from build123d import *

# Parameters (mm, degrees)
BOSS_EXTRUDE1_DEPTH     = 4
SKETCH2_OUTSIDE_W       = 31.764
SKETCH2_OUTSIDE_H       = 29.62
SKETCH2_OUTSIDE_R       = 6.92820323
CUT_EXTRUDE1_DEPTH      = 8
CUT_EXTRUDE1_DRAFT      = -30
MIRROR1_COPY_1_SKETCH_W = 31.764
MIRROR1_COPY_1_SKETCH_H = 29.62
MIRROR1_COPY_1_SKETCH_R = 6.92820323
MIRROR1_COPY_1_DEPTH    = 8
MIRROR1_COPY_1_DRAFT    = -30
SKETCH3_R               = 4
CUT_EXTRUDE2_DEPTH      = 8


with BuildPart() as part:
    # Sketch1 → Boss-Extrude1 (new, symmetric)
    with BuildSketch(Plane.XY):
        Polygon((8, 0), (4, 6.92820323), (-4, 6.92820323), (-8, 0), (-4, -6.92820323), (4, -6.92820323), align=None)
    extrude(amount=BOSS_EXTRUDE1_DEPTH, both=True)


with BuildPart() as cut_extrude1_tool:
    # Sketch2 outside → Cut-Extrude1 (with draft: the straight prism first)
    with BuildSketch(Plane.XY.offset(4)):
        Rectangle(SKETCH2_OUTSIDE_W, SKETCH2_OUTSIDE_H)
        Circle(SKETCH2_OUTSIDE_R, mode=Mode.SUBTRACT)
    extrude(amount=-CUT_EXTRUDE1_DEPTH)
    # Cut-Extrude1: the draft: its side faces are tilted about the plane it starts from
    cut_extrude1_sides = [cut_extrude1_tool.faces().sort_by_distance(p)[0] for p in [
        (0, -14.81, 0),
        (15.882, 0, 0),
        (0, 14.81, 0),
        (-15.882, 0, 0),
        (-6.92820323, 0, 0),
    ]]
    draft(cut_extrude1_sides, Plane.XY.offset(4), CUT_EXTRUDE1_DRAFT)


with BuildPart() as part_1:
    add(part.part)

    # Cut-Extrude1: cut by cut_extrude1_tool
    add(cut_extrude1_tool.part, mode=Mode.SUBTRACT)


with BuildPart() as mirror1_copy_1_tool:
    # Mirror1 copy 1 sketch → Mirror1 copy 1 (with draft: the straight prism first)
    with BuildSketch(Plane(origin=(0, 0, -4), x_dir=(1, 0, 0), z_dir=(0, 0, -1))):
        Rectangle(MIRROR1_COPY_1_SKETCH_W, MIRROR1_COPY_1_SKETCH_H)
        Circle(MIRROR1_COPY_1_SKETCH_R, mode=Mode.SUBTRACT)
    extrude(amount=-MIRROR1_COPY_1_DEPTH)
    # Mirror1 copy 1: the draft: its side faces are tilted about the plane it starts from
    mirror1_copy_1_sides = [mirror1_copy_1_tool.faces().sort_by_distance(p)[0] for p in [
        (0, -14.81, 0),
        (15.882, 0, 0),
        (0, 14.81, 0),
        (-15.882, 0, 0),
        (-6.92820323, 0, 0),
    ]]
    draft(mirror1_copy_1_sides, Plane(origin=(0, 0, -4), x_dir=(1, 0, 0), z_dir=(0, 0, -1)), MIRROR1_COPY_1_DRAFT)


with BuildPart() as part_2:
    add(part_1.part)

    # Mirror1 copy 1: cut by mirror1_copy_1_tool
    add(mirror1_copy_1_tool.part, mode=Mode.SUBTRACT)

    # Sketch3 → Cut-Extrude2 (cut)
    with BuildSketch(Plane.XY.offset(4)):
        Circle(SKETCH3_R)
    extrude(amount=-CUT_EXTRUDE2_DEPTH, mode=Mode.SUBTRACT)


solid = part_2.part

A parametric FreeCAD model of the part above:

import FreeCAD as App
import Part
import Sketcher
Q = App.Units.Quantity


def faces_at(feature, points):
    """Names of the faces that lie closest to the given points."""
    faces = feature.Shape.Faces
    near = lambda p: min(range(len(faces)), key=lambda i: faces[i].distToShape(Part.Vertex(*p))[0])
    return sorted({f"Face{near(p) + 1}" for p in points})

doc = App.newDocument("Part")
params = doc.addObject("Spreadsheet::Sheet", "Params")
for row, (alias, value) in enumerate([
    ("sketch1_width", "8 mm"),
    ("sketch1_length", "8 mm"),
    ("pad1_length", "8 mm"),
    ("sketch2_height", "29.62 mm"),
    ("pad2_length", "8 mm"),
    ("draft_angle", "30 deg"),
    ("sketch3_height", "29.62 mm"),
    ("pad3_length", "8 mm"),
    ("draft2_angle", "30 deg"),
    ("sketch4_diameter", "8 mm"),
    ("pocket1_length", "8 mm"),
], start=1):
    params.set(f"A{row}", alias)
    params.set(f"B{row}", "=" + value)
    params.setAlias(f"B{row}", alias)

body = doc.addObject("PartDesign::Body", "Body")

sketch1 = body.newObject("Sketcher::SketchObject", "Sketch")
sketch1.AttachmentSupport = (doc.getObject("XY_Plane"), [""])
sketch1.MapMode = "FlatFace"
sketch1.addGeometry([
    Part.LineSegment(App.Vector(8, 0, 0), App.Vector(4, 7, 0)),
    Part.LineSegment(App.Vector(4, 7, 0), App.Vector(-4, 7, 0)),
    Part.LineSegment(App.Vector(-4, 7, 0), App.Vector(-8, 0, 0)),
    Part.LineSegment(App.Vector(-8, 0, 0), App.Vector(-4, -7, 0)),
    Part.LineSegment(App.Vector(-4, -7, 0), App.Vector(4, -7, 0)),
    Part.LineSegment(App.Vector(4, -7, 0), App.Vector(8, 0, 0)),
], False)
sketch1.addConstraint([
    Sketcher.Constraint("Coincident", 0, 2, 1, 1),
    Sketcher.Constraint("Coincident", 1, 2, 2, 1),
    Sketcher.Constraint("Coincident", 2, 2, 3, 1),
    Sketcher.Constraint("Coincident", 3, 2, 4, 1),
    Sketcher.Constraint("Coincident", 4, 2, 5, 1),
    Sketcher.Constraint("Coincident", 5, 2, 0, 1),
    Sketcher.Constraint("Horizontal", 1),
    Sketcher.Constraint("Horizontal", 4),
    Sketcher.Constraint("Symmetric", 0, 2, 3, 2, -1, 1),
    Sketcher.Constraint("Symmetric", 2, 2, 5, 2, -1, 1),
    Sketcher.Constraint("PointOnObject", 2, 2, -1),
    Sketcher.Constraint("Parallel", 2, 5),
    Sketcher.Constraint("Vertical", 1, 2, 3, 2),
    Sketcher.Constraint("DistanceX", 1, 2, 1, 1, Q("8 mm")),
    Sketcher.Constraint("Angle", 0, Q("120 deg")),
    Sketcher.Constraint("Distance", 0, Q("8 mm")),
])
sketch1.setExpression("Constraints[13]", "Params.sketch1_width")
sketch1.setExpression("Constraints[15]", "Params.sketch1_length")
pad1 = body.newObject("PartDesign::Pad", "Pad")
pad1.Profile = sketch1
pad1.setExpression("Length", "Params.pad1_length")
pad1.Midplane = True
body2 = doc.addObject("PartDesign::Body", "Body001")

sketch2 = body2.newObject("Sketcher::SketchObject", "Sketch001")
sketch2.AttachmentSupport = (doc.getObject("XY_Plane001"), [""])
sketch2.MapMode = "FlatFace"
sketch2.AttachmentOffset = App.Placement(App.Vector(0, 0, 4), App.Rotation())
sketch2.addGeometry([
    Part.LineSegment(App.Vector(-16, 15, 0), App.Vector(-16, -15, 0)),
    Part.LineSegment(App.Vector(-16, -15, 0), App.Vector(16, -15, 0)),
    Part.LineSegment(App.Vector(16, -15, 0), App.Vector(16, 15, 0)),
    Part.LineSegment(App.Vector(16, 15, 0), App.Vector(-16, 15, 0)),
    Part.Circle(App.Vector(0, 0, 0), App.Vector(0, 0, 1), 7),
], False)
sketch2.addConstraint([
    Sketcher.Constraint("Coincident", 0, 2, 1, 1),
    Sketcher.Constraint("Coincident", 1, 2, 2, 1),
    Sketcher.Constraint("Coincident", 2, 2, 3, 1),
    Sketcher.Constraint("Coincident", 3, 2, 0, 1),
    Sketcher.Constraint("Vertical", 0),
    Sketcher.Constraint("Horizontal", 1),
    Sketcher.Constraint("Vertical", 2),
    Sketcher.Constraint("Horizontal", 3),
    Sketcher.Constraint("Coincident", 4, 3, -1, 1),
    Sketcher.Constraint("Symmetric", 0, 2, 2, 2, -1, 1),
    Sketcher.Constraint("DistanceY", 0, 2, 0, 1, Q("29.62 mm")),
    Sketcher.Constraint("DistanceX", 1, 1, 1, 2, Q("31.764 mm")),
    Sketcher.Constraint("Diameter", 4, Q("13.856406 mm")),
])
sketch2.setExpression("Constraints[10]", "Params.sketch2_height")
pad2 = body2.newObject("PartDesign::Pad", "Pad001")
pad2.Profile = sketch2
pad2.setExpression("Length", "Params.pad2_length")
pad2.Reversed = True
doc.recompute()

datumplane = body2.newObject("PartDesign::Plane", "DatumPlane")
datumplane.AttachmentSupport = (doc.getObject("XY_Plane001"), [""])
datumplane.MapMode = "FlatFace"
datumplane.AttachmentOffset = App.Placement(App.Vector(0, 0, 4), App.Rotation())
draft = body2.newObject("PartDesign::Draft", "Draft")
draft.Base = (pad2, faces_at(pad2, [
    (0, -14.81, 0),
    (15.882, 0, 0),
    (0, 14.81, 0),
    (-15.882, 0, 0),
    (-6.928, 0, 0),
]))
draft.NeutralPlane = (datumplane, [""])
draft.setExpression("Angle", "Params.draft_angle")
draft.Reversed = True
doc.recompute()

boolean = body.newObject("PartDesign::Boolean", "Boolean")
boolean.Type = "Cut"
boolean.addObjects([body2])
body3 = doc.addObject("PartDesign::Body", "Body002")

sketch3 = body3.newObject("Sketcher::SketchObject", "Sketch002")
sketch3.AttachmentSupport = (doc.getObject("XY_Plane002"), [""])
sketch3.MapMode = "FlatFace"
sketch3.AttachmentOffset = App.Placement(App.Vector(0, 0, -4), App.Rotation())
sketch3.addGeometry([
    Part.LineSegment(App.Vector(-16, -15, 0), App.Vector(-16, 15, 0)),
    Part.LineSegment(App.Vector(-16, 15, 0), App.Vector(16, 15, 0)),
    Part.LineSegment(App.Vector(16, 15, 0), App.Vector(16, -15, 0)),
    Part.LineSegment(App.Vector(16, -15, 0), App.Vector(-16, -15, 0)),
    Part.Circle(App.Vector(0, 0, 0), App.Vector(0, 0, 1), 7),
], False)
sketch3.addConstraint([
    Sketcher.Constraint("Coincident", 0, 2, 1, 1),
    Sketcher.Constraint("Coincident", 1, 2, 2, 1),
    Sketcher.Constraint("Coincident", 2, 2, 3, 1),
    Sketcher.Constraint("Coincident", 3, 2, 0, 1),
    Sketcher.Constraint("Vertical", 0),
    Sketcher.Constraint("Horizontal", 1),
    Sketcher.Constraint("Vertical", 2),
    Sketcher.Constraint("Horizontal", 3),
    Sketcher.Constraint("Coincident", 4, 3, -1, 1),
    Sketcher.Constraint("Symmetric", 0, 2, 2, 2, -1, 1),
    Sketcher.Constraint("DistanceY", 0, 1, 0, 2, Q("29.62 mm")),
    Sketcher.Constraint("DistanceX", 1, 1, 1, 2, Q("31.764 mm")),
    Sketcher.Constraint("Diameter", 4, Q("13.856406 mm")),
])
sketch3.setExpression("Constraints[10]", "Params.sketch3_height")
pad3 = body3.newObject("PartDesign::Pad", "Pad002")
pad3.Profile = sketch3
pad3.setExpression("Length", "Params.pad3_length")
doc.recompute()

datumplane2 = body3.newObject("PartDesign::Plane", "DatumPlane001")
datumplane2.AttachmentSupport = (doc.getObject("XY_Plane002"), [""])
datumplane2.MapMode = "FlatFace"
datumplane2.AttachmentOffset = App.Placement(App.Vector(0, 0, -4), App.Rotation())
draft2 = body3.newObject("PartDesign::Draft", "Draft001")
draft2.Base = (pad3, faces_at(pad3, [
    (0, -14.81, 0),
    (15.882, 0, 0),
    (0, 14.81, 0),
    (-15.882, 0, 0),
    (-6.928, 0, 0),
]))
draft2.NeutralPlane = (datumplane2, [""])
draft2.setExpression("Angle", "Params.draft2_angle")
draft2.Reversed = False
doc.recompute()

boolean2 = body.newObject("PartDesign::Boolean", "Boolean001")
boolean2.Type = "Cut"
boolean2.addObjects([body3])

sketch4 = body.newObject("Sketcher::SketchObject", "Sketch003")
sketch4.AttachmentSupport = (doc.getObject("XY_Plane"), [""])
sketch4.MapMode = "FlatFace"
sketch4.AttachmentOffset = App.Placement(App.Vector(0, 0, 4), App.Rotation())
sketch4.addGeometry(Part.Circle(App.Vector(0, 0, 0), App.Vector(0, 0, 1), 4), False)
sketch4.addConstraint([
    Sketcher.Constraint("Coincident", 0, 3, -1, 1),
    Sketcher.Constraint("Diameter", 0, Q("8 mm")),
])
sketch4.setExpression("Constraints[1]", "Params.sketch4_diameter")
pocket1 = body.newObject("PartDesign::Pocket", "Pocket")
pocket1.Profile = sketch4
pocket1.setExpression("Length", "Params.pocket1_length")

doc.recompute()
